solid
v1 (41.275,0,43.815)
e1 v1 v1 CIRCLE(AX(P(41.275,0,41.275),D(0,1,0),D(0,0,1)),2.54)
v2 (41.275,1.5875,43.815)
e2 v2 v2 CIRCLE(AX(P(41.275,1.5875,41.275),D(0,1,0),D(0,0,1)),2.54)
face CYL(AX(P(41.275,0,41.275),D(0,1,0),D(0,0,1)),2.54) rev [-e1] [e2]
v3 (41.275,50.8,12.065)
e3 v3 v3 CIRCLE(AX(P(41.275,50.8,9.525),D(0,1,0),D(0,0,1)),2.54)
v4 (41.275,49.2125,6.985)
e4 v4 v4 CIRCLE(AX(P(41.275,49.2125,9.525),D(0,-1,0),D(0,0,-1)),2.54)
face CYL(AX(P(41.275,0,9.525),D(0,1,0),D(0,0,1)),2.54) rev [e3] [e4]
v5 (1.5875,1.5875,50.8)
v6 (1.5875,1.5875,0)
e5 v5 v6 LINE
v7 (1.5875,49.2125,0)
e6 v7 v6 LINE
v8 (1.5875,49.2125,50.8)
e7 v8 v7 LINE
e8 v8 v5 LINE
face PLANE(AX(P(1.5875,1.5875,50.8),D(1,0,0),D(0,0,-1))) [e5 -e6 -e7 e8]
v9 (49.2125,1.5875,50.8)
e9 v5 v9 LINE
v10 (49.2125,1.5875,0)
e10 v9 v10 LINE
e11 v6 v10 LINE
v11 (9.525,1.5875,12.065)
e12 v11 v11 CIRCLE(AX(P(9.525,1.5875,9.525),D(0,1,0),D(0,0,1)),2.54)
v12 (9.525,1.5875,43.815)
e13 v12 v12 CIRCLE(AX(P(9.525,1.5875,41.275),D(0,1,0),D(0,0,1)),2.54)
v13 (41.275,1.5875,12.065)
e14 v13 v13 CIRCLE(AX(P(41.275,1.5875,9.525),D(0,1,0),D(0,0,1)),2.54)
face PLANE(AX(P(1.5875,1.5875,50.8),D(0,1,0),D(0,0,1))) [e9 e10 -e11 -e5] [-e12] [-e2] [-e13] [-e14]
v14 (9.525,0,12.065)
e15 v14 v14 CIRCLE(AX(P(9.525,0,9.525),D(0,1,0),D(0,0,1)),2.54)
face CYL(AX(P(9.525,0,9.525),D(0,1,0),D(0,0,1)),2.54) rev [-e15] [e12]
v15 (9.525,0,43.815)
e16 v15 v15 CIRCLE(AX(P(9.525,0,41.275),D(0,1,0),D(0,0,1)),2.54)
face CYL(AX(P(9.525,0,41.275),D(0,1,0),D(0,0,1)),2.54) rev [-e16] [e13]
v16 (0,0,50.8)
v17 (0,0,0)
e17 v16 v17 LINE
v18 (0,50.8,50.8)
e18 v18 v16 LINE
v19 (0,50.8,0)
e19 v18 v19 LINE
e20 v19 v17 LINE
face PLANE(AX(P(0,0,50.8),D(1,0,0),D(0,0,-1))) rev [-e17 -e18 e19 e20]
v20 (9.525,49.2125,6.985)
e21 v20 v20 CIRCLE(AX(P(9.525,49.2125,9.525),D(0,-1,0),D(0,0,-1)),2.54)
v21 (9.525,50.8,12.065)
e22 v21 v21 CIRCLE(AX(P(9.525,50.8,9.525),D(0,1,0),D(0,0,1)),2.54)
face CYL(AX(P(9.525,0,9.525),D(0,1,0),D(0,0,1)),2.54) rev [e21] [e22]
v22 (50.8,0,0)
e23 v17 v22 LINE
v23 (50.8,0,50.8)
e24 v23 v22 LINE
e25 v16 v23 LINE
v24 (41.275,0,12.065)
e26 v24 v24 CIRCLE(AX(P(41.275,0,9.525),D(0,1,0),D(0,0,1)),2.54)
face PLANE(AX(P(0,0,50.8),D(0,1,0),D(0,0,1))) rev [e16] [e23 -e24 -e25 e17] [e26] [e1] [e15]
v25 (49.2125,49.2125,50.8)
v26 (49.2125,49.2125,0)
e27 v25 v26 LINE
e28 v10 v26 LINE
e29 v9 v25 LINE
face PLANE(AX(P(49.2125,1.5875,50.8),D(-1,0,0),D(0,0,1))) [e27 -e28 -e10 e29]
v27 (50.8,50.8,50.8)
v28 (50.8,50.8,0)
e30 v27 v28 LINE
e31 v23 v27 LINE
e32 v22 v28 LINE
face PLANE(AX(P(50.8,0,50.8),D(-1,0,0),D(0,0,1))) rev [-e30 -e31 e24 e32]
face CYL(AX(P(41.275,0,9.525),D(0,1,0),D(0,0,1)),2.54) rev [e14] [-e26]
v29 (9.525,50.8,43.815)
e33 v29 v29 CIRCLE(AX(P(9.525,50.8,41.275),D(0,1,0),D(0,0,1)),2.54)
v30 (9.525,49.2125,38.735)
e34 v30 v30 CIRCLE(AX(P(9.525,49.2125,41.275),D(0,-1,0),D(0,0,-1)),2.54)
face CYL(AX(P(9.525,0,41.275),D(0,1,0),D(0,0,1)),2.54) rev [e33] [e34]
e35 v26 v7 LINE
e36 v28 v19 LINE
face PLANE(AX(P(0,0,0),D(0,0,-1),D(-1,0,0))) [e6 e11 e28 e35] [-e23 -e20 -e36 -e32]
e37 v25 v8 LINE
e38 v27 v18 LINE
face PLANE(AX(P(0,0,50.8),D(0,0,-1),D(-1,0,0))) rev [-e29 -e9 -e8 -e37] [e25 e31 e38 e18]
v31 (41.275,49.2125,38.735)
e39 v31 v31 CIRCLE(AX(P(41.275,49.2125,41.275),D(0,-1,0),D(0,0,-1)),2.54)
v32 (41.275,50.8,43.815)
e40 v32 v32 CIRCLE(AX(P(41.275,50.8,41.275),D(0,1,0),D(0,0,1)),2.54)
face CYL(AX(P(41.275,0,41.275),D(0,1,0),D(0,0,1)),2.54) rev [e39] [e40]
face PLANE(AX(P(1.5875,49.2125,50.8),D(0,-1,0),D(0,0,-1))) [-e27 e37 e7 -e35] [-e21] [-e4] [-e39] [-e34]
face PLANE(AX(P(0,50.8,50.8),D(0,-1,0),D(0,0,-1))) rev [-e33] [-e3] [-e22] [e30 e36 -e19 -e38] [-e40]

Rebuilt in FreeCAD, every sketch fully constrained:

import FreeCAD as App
import Part
import Sketcher

V = App.Vector
Q = App.Units.Quantity

doc = App.newDocument("Part")
body = doc.addObject("PartDesign::Body", "Body")

sketch1 = doc.addObject("Sketcher::SketchObject", "Sketch")
body.addObject(sketch1)
sketch1.AttachmentSupport = (doc.XY_Plane, [""])
sketch1.MapMode = "FlatFace"
sketch1.addGeometry(Part.LineSegment(V(0, 50.8, 0), V(0, 0, 0)), False)
sketch1.addGeometry(Part.LineSegment(V(0, 0, 0), V(50.8, 0, 0)), False)
sketch1.addGeometry(Part.LineSegment(V(50.8, 0, 0), V(50.8, 50.8, 0)), False)
sketch1.addGeometry(Part.LineSegment(V(50.8, 50.8, 0), V(0, 50.8, 0)), False)
sketch1.addGeometry(Part.LineSegment(V(49.2125, 1.5875, 0), V(1.5875, 1.5875, 0)), False)
sketch1.addGeometry(Part.LineSegment(V(1.5875, 1.5875, 0), V(1.5875, 49.2125, 0)), False)
sketch1.addGeometry(Part.LineSegment(V(1.5875, 49.2125, 0), V(49.2125, 49.2125, 0)), False)
sketch1.addGeometry(Part.LineSegment(V(49.2125, 49.2125, 0), V(49.2125, 1.5875, 0)), False)
sketch1.addConstraint(Sketcher.Constraint("Coincident", 0, 2, 1, 1))
sketch1.addConstraint(Sketcher.Constraint("Coincident", 1, 2, 2, 1))
sketch1.addConstraint(Sketcher.Constraint("Coincident", 2, 2, 3, 1))
sketch1.addConstraint(Sketcher.Constraint("Coincident", 3, 2, 0, 1))
sketch1.addConstraint(Sketcher.Constraint("Coincident", 4, 2, 5, 1))
sketch1.addConstraint(Sketcher.Constraint("Coincident", 5, 2, 6, 1))
sketch1.addConstraint(Sketcher.Constraint("Coincident", 6, 2, 7, 1))
sketch1.addConstraint(Sketcher.Constraint("Coincident", 7, 2, 4, 1))
sketch1.addConstraint(Sketcher.Constraint("Vertical", 0))
sketch1.addConstraint(Sketcher.Constraint("Horizontal", 1))
sketch1.addConstraint(Sketcher.Constraint("Vertical", 2))
sketch1.addConstraint(Sketcher.Constraint("Horizontal", 3))
sketch1.addConstraint(Sketcher.Constraint("Horizontal", 4))
sketch1.addConstraint(Sketcher.Constraint("Vertical", 5))
sketch1.addConstraint(Sketcher.Constraint("Horizontal", 6))
sketch1.addConstraint(Sketcher.Constraint("Vertical", 7))
sketch1.addConstraint(Sketcher.Constraint("Coincident", 0, 2, -1, 1))
sketch1.addConstraint(Sketcher.Constraint("Equal", 3, 0))
sketch1.addConstraint(Sketcher.Constraint("Equal", 6, 5))
sketch1.addConstraint(Sketcher.Constraint("DistanceX", 1, 1, 1, 2, Q("2 in")))
sketch1.addConstraint(Sketcher.Constraint("DistanceX", 4, 2, 4, 1, Q("1.875 in")))
sketch1.addConstraint(Sketcher.Constraint("DistanceX", -1, 1, 4, 2, Q("0.0625 in")))
sketch1.addConstraint(Sketcher.Constraint("DistanceY", -1, 1, 4, 2, Q("0.0625 in")))
pad1 = doc.addObject("PartDesign::Pad", "Pad")
body.addObject(pad1)
pad1.Profile = sketch1
pad1.Length = Q("2 in")

sketch2 = doc.addObject("Sketcher::SketchObject", "Sketch001")
body.addObject(sketch2)
sketch2.AttachmentSupport = (doc.XZ_Plane, [""])
sketch2.MapMode = "FlatFace"
sketch2.AttachmentOffset = App.Placement(V(0, 0, -2 * 25.4), App.Rotation())
sketch2.addGeometry(Part.Circle(V(41.275, 9.525, 0), V(0, 0, 1), 2.54), False)
sketch2.addGeometry(Part.Circle(V(41.275, 41.275, 0), V(0, 0, 1), 2.54), False)
sketch2.addGeometry(Part.Circle(V(9.525, 9.525, 0), V(0, 0, 1), 2.54), False)
sketch2.addGeometry(Part.Circle(V(9.525, 41.275, 0), V(0, 0, 1), 2.54), False)
sketch2.addConstraint(Sketcher.Constraint("Equal", 0, 1))
sketch2.addConstraint(Sketcher.Constraint("Equal", 1, 2))
sketch2.addConstraint(Sketcher.Constraint("Equal", 2, 3))
sketch2.addConstraint(Sketcher.Constraint("Horizontal", 0, 3, 2, 3))
sketch2.addConstraint(Sketcher.Constraint("Horizontal", 1, 3, 3, 3))
sketch2.addConstraint(Sketcher.Constraint("Vertical", 0, 3, 1, 3))
sketch2.addConstraint(Sketcher.Constraint("Vertical", 2, 3, 3, 3))
sketch2.addConstraint(Sketcher.Constraint("Diameter", 0, Q("0.2 in")))
sketch2.addConstraint(Sketcher.Constraint("DistanceY", 0, 3, 1, 3, Q("1.25 in")))
sketch2.addConstraint(Sketcher.Constraint("DistanceX", 2, 3, 0, 3, Q("1.25 in")))
sketch2.addConstraint(Sketcher.Constraint("DistanceX", -1, 1, 0, 3, Q("1.625 in")))
sketch2.addConstraint(Sketcher.Constraint("DistanceY", -1, 1, 0, 3, Q("0.375 in")))
pocket1 = doc.addObject("PartDesign::Pocket", "Pocket")
body.addObject(pocket1)
pocket1.Profile = sketch2
pocket1.Type = "ThroughAll"
pocket1.Reversed = True

doc.recompute()
